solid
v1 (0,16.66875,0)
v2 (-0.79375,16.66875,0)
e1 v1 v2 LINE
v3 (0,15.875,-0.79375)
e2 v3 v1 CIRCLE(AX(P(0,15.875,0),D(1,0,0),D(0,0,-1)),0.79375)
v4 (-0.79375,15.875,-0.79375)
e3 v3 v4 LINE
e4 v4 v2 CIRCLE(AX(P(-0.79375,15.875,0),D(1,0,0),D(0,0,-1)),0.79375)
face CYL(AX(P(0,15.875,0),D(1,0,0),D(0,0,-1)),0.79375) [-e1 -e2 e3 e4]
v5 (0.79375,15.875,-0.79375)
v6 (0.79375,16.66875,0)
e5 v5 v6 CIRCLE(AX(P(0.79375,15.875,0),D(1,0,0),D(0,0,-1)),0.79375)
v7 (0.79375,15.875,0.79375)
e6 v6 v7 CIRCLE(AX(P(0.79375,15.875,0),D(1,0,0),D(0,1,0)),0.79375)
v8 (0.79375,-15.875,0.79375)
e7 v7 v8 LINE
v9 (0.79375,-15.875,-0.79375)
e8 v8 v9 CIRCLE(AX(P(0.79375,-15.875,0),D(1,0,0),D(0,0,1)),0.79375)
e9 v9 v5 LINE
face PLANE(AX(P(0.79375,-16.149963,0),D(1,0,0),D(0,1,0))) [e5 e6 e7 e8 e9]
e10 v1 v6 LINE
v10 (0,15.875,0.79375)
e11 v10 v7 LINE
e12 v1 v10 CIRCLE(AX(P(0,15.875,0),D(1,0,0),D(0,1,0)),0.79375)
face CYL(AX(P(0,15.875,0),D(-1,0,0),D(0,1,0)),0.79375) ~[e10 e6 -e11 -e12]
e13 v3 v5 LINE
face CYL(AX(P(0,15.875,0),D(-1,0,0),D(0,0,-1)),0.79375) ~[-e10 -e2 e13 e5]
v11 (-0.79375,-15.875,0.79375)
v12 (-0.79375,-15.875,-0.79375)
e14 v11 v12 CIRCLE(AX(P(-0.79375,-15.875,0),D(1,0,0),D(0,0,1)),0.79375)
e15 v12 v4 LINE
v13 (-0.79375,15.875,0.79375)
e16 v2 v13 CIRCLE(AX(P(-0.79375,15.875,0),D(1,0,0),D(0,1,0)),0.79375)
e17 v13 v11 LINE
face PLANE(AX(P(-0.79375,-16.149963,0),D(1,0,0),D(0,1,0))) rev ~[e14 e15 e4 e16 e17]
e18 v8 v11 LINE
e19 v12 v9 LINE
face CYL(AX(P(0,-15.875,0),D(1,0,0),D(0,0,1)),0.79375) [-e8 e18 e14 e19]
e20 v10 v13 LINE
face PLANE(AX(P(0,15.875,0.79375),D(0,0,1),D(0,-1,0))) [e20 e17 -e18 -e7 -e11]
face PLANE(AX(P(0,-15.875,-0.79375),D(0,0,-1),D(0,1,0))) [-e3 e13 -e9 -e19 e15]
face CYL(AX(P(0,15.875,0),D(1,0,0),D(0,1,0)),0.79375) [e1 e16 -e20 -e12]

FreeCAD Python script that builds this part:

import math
import FreeCAD as App
import Part
import Sketcher

V = App.Vector
Q = App.Units.Quantity

doc = App.newDocument("Part")
body = doc.addObject("PartDesign::Body", "Body")

sketch1 = body.newObject("Sketcher::SketchObject", "Sketch")
sketch1.AttachmentSupport = (doc.getObject("YZ_Plane"), [""])
sketch1.MapMode = "FlatFace"
sketch1.addGeometry(Part.ArcOfCircle(Part.Circle(V(-15.9, 0, 0), V(0, 0, 1), 0.8), math.radians(90), math.radians(270)), False)
sketch1.addGeometry(Part.LineSegment(V(-15.9, -0.8, 0), V(15.9, -0.8, 0)), False)
sketch1.addGeometry(Part.ArcOfCircle(Part.Circle(V(15.9, 0, 0), V(0, 0, 1), 0.8), math.radians(-90), math.radians(0)), False)
sketch1.addGeometry(Part.ArcOfCircle(Part.Circle(V(15.9, 0, 0), V(0, 0, 1), 0.8), math.radians(0), math.radians(90)), False)
sketch1.addGeometry(Part.LineSegment(V(15.9, 0.8, 0), V(-15.9, 0.8, 0)), False)
sketch1.addConstraint(Sketcher.Constraint("Tangent", 0, 2, 1, 1))
sketch1.addConstraint(Sketcher.Constraint("Tangent", 1, 2, 2, 1))
sketch1.addConstraint(Sketcher.Constraint("Tangent", 2, 2, 3, 1))
sketch1.addConstraint(Sketcher.Constraint("Tangent", 3, 2, 4, 1))
sketch1.addConstraint(Sketcher.Constraint("Tangent", 4, 2, 0, 1))
sketch1.addConstraint(Sketcher.Constraint("Horizontal", 1))
sketch1.addConstraint(Sketcher.Constraint("Horizontal", 4))
sketch1.addConstraint(Sketcher.Constraint("Equal", 0, 2))
sketch1.addConstraint(Sketcher.Constraint("Symmetric", 0, 3, 2, 3, -1, 1))
sketch1.addConstraint(Sketcher.Constraint("PointOnObject", 2, 2, -1))
sketch1.addConstraint(Sketcher.Constraint("Radius", 0, Q("0.03125 in")))
sketch1.addConstraint(Sketcher.Constraint("DistanceX", 1, 1, 1, 2, Q("1.25 in")))
pad1 = body.newObject("PartDesign::Pad", "Pad")
pad1.Profile = sketch1
pad1.Length = Q("0.0625 in")
pad1.Midplane = True

doc.recompute()
